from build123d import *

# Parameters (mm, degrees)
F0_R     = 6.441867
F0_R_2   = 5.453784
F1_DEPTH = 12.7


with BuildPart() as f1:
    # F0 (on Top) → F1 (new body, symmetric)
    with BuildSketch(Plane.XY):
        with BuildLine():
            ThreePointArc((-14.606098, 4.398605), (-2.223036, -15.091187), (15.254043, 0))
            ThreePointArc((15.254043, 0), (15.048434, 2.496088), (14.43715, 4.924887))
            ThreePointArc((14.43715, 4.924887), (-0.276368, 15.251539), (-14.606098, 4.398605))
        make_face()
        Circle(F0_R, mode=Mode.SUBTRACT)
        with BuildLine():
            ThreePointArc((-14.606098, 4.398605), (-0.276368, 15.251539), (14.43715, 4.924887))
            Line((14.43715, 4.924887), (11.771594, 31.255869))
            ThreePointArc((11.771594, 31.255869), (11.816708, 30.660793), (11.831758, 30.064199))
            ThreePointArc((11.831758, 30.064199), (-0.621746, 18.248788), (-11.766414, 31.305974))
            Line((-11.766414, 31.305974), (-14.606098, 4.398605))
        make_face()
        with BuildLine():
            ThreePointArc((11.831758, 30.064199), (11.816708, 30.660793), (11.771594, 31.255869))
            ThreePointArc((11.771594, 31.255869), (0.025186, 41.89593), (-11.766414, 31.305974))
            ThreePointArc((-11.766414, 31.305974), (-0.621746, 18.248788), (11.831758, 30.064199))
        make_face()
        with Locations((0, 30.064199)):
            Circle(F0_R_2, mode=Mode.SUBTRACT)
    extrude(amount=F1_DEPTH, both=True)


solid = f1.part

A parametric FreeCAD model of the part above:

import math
import FreeCAD as App
import Part
import Sketcher
from FreeCAD import Vector
Q = App.Units.Quantity

doc = App.newDocument("Part")
body = doc.addObject("PartDesign::Body", "Body")

# Sketch on XY plane
sketch1 = body.newObject("Sketcher::SketchObject", "Sketch")
sketch1.AttachmentSupport = (doc.getObject("XY_Plane"), [""])
sketch1.MapMode = "FlatFace"
sketch1.addGeometry(Part.ArcOfCircle(Part.Circle(Vector(0, 0, 0), Vector(0, 0, 1), 15.3), math.radians(163), math.radians(360)), False)
sketch1.addGeometry(Part.ArcOfCircle(Part.Circle(Vector(0, 0, 0), Vector(0, 0, 1), 15.3), math.radians(0), math.radians(18.84)), False)
sketch1.addGeometry(Part.LineSegment(Vector(14.4, 4.9, 0), Vector(11.8, 31.3, 0)), False)
sketch1.addGeometry(Part.ArcOfCircle(Part.Circle(Vector(0, 30.1, 0), Vector(0, 0, 1), 11.8), math.radians(6), math.radians(174)), False)
sketch1.addGeometry(Part.LineSegment(Vector(-11.8, 31.3, 0), Vector(-14.6, 4.4, 0)), False)
sketch1.addGeometry(Part.Circle(Vector(0, 0, 0), Vector(0, 0, 1), 6.4), False)
sketch1.addGeometry(Part.Circle(Vector(0, 30.1, 0), Vector(0, 0, 1), 5.5), False)
sketch1.addConstraint(Sketcher.Constraint("Tangent", 0, 2, 1, 1))
sketch1.addConstraint(Sketcher.Constraint("Coincident", 1, 2, 2, 1))
sketch1.addConstraint(Sketcher.Constraint("Tangent", 2, 2, 3, 1))
sketch1.addConstraint(Sketcher.Constraint("Tangent", 3, 2, 4, 1))
sketch1.addConstraint(Sketcher.Constraint("Coincident", 4, 2, 0, 1))
sketch1.addConstraint(Sketcher.Constraint("Coincident", 0, 3, -1, 1))
sketch1.addConstraint(Sketcher.Constraint("Coincident", 5, 3, -1, 1))
sketch1.addConstraint(Sketcher.Constraint("Coincident", 6, 3, 3, 3))
sketch1.addConstraint(Sketcher.Constraint("PointOnObject", 3, 3, -2))
sketch1.addConstraint(Sketcher.Constraint("PointOnObject", 0, 2, -1))
sketch1.addConstraint(Sketcher.Constraint("Radius", 1, Q("15.25404 mm")))
sketch1.addConstraint(Sketcher.Constraint("Radius", 3, Q("11.831758 mm")))
sketch1.addConstraint(Sketcher.Constraint("Diameter", 5, Q("12.883734 mm")))
sketch1.addConstraint(Sketcher.Constraint("Diameter", 6, Q("10.907568 mm")))
sketch1.addConstraint(Sketcher.Constraint("Radius", 0, Q("15.254043 mm")))
sketch1.addConstraint(Sketcher.Constraint("DistanceY", -1, 1, 3, 3, Q("30.064199 mm")))
sketch1.addConstraint(Sketcher.Constraint("DistanceX", 4, 2, 0, 3, Q("14.606098 mm")))
sketch1.addConstraint(Sketcher.Constraint("Distance", 2, Q("26.465559 mm")))
pad1 = body.newObject("PartDesign::Pad", "Pad")
pad1.Profile = sketch1
pad1.Length = Q("1 in")
pad1.Midplane = True

doc.recompute()
